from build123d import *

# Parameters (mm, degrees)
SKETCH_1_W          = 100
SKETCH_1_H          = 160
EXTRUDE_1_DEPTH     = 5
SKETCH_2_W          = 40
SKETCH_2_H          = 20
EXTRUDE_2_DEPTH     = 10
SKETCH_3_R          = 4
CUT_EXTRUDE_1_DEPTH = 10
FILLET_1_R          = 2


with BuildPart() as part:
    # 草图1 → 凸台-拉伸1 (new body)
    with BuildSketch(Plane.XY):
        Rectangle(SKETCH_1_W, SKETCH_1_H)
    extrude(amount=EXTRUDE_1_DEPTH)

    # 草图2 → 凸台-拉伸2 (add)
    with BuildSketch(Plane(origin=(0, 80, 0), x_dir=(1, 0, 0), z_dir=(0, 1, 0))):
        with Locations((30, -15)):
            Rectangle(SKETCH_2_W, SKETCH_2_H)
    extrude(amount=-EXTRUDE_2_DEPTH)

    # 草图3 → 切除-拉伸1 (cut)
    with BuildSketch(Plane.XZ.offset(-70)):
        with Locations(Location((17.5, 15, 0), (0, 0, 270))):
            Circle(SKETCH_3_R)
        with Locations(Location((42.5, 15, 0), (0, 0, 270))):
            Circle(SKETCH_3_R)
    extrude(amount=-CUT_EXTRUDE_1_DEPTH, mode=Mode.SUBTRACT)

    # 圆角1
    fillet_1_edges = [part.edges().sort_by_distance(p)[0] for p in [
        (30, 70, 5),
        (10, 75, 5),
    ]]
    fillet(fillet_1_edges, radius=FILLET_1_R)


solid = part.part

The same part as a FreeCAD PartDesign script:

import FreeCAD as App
import Part
import Sketcher
from FreeCAD import Vector


def edges_at(feature, points):
    """Names of the edges that pass closest to the given points."""
    edges = feature.Shape.Edges
    near = lambda p: min(range(len(edges)), key=lambda i: edges[i].distToShape(Part.Vertex(*p))[0])
    return sorted({f"Edge{near(p) + 1}" for p in points})


def add_polygon(sketch, points):
    """Adds a closed chain of lines whose ends are joined by coincident constraints."""
    first, n = sketch.GeometryCount, len(points)
    for a, b in zip(points, points[1:] + points[:1]):
        sketch.addGeometry(Part.LineSegment(App.Vector(*a, 0), App.Vector(*b, 0)), False)
    for i in range(n):
        sketch.addConstraint(Sketcher.Constraint("Coincident", first + i, 2, first + (i + 1) % n, 1))

doc = App.newDocument("Part")
params = doc.addObject("Spreadsheet::Sheet", "Params")
for row, (alias, value) in enumerate([
    ("sketch1_width", "100 mm"),
    ("sketch1_height", "160 mm"),
    ("pad1_length", "5 mm"),
    ("sketch2_width", "40 mm"),
    ("sketch2_height", "20 mm"),
    ("pad2_length", "10 mm"),
    ("sketch3_diameter", "8 mm"),
    ("pocket1_length", "10 mm"),
    ("fillet_radius", "2 mm"),
], start=1):
    params.set(f"A{row}", alias)
    params.set(f"B{row}", "=" + value)
    params.setAlias(f"B{row}", alias)

body = doc.addObject("PartDesign::Body", "Body")

sketch1 = body.newObject("Sketcher::SketchObject", "Sketch")
sketch1.AttachmentSupport = (doc.getObject("XY_Plane"), [""])
sketch1.MapMode = "FlatFace"
add_polygon(sketch1, [(-50, 80), (-50, -80), (50, -80), (50, 80)])
sketch1.addConstraint(Sketcher.Constraint("Vertical", 0))
sketch1.addConstraint(Sketcher.Constraint("Horizontal", 1))
sketch1.addConstraint(Sketcher.Constraint("Vertical", 2))
sketch1.addConstraint(Sketcher.Constraint("Horizontal", 3))
sketch1.addConstraint(Sketcher.Constraint("Symmetric", 0, 2, 2, 2, -1, 1))
sketch1.addConstraint(Sketcher.Constraint("DistanceX", 1, 1, 1, 2, 100.0))
sketch1.addConstraint(Sketcher.Constraint("DistanceY", 0, 2, 0, 1, 160.0))
sketch1.setExpression("Constraints[9]", "Params.sketch1_width")
sketch1.setExpression("Constraints[10]", "Params.sketch1_height")
pad1 = body.newObject("PartDesign::Pad", "Pad")
pad1.Profile = sketch1
pad1.setExpression("Length", "Params.pad1_length")

sketch2 = body.newObject("Sketcher::SketchObject", "Sketch001")
sketch2.AttachmentSupport = (doc.getObject("XZ_Plane"), [""])
sketch2.MapMode = "FlatFace"
sketch2.AttachmentOffset = App.Placement(Vector(0, 0, -80), App.Rotation())
add_polygon(sketch2, [(10, 5), (10, 25), (50, 25), (50, 5)])
sketch2.addConstraint(Sketcher.Constraint("Vertical", 0))
sketch2.addConstraint(Sketcher.Constraint("Horizontal", 1))
sketch2.addConstraint(Sketcher.Constraint("Vertical", 2))
sketch2.addConstraint(Sketcher.Constraint("Horizontal", 3))
sketch2.addConstraint(Sketcher.Constraint("DistanceX", 1, 1, 1, 2, 40.0))
sketch2.addConstraint(Sketcher.Constraint("DistanceY", 0, 1, 0, 2, 20.0))
sketch2.addConstraint(Sketcher.Constraint("DistanceX", -1, 1, 0, 2, 10.0))
sketch2.addConstraint(Sketcher.Constraint("DistanceY", -1, 1, 0, 2, 25.0))
sketch2.setExpression("Constraints[8]", "Params.sketch2_width")
sketch2.setExpression("Constraints[9]", "Params.sketch2_height")
pad2 = body.newObject("PartDesign::Pad", "Pad001")
pad2.Profile = sketch2
pad2.setExpression("Length", "Params.pad2_length")

sketch3 = body.newObject("Sketcher::SketchObject", "Sketch002")
sketch3.AttachmentSupport = (doc.getObject("XZ_Plane"), [""])
sketch3.MapMode = "FlatFace"
sketch3.AttachmentOffset = App.Placement(Vector(0, 0, -70), App.Rotation())
sketch3.addGeometry(Part.Circle(Vector(17.5, 15, 0), Vector(0, 0, 1), 4), False)
sketch3.addGeometry(Part.Circle(Vector(42.5, 15, 0), Vector(0, 0, 1), 4), False)
sketch3.addConstraint(Sketcher.Constraint("Equal", 0, 1))
sketch3.addConstraint(Sketcher.Constraint("Horizontal", 0, 3, 1, 3))
sketch3.addConstraint(Sketcher.Constraint("Diameter", 0, 8.0))
sketch3.addConstraint(Sketcher.Constraint("DistanceY", -1, 1, 0, 3, 15.0))
sketch3.addConstraint(Sketcher.Constraint("DistanceX", 0, 3, 1, 3, 25.0))
sketch3.addConstraint(Sketcher.Constraint("DistanceX", -1, 1, 0, 3, 17.5))
sketch3.setExpression("Constraints[2]", "Params.sketch3_diameter")
pocket1 = body.newObject("PartDesign::Pocket", "Pocket")
pocket1.Profile = sketch3
pocket1.setExpression("Length", "Params.pocket1_length")
doc.recompute()

fillet = body.newObject("PartDesign::Fillet", "Fillet")
fillet.Base = (pocket1, edges_at(pocket1, [(30, 70, 5), (10, 75, 5)]))
fillet.setExpression("Radius", "Params.fillet_radius")

doc.recompute()
